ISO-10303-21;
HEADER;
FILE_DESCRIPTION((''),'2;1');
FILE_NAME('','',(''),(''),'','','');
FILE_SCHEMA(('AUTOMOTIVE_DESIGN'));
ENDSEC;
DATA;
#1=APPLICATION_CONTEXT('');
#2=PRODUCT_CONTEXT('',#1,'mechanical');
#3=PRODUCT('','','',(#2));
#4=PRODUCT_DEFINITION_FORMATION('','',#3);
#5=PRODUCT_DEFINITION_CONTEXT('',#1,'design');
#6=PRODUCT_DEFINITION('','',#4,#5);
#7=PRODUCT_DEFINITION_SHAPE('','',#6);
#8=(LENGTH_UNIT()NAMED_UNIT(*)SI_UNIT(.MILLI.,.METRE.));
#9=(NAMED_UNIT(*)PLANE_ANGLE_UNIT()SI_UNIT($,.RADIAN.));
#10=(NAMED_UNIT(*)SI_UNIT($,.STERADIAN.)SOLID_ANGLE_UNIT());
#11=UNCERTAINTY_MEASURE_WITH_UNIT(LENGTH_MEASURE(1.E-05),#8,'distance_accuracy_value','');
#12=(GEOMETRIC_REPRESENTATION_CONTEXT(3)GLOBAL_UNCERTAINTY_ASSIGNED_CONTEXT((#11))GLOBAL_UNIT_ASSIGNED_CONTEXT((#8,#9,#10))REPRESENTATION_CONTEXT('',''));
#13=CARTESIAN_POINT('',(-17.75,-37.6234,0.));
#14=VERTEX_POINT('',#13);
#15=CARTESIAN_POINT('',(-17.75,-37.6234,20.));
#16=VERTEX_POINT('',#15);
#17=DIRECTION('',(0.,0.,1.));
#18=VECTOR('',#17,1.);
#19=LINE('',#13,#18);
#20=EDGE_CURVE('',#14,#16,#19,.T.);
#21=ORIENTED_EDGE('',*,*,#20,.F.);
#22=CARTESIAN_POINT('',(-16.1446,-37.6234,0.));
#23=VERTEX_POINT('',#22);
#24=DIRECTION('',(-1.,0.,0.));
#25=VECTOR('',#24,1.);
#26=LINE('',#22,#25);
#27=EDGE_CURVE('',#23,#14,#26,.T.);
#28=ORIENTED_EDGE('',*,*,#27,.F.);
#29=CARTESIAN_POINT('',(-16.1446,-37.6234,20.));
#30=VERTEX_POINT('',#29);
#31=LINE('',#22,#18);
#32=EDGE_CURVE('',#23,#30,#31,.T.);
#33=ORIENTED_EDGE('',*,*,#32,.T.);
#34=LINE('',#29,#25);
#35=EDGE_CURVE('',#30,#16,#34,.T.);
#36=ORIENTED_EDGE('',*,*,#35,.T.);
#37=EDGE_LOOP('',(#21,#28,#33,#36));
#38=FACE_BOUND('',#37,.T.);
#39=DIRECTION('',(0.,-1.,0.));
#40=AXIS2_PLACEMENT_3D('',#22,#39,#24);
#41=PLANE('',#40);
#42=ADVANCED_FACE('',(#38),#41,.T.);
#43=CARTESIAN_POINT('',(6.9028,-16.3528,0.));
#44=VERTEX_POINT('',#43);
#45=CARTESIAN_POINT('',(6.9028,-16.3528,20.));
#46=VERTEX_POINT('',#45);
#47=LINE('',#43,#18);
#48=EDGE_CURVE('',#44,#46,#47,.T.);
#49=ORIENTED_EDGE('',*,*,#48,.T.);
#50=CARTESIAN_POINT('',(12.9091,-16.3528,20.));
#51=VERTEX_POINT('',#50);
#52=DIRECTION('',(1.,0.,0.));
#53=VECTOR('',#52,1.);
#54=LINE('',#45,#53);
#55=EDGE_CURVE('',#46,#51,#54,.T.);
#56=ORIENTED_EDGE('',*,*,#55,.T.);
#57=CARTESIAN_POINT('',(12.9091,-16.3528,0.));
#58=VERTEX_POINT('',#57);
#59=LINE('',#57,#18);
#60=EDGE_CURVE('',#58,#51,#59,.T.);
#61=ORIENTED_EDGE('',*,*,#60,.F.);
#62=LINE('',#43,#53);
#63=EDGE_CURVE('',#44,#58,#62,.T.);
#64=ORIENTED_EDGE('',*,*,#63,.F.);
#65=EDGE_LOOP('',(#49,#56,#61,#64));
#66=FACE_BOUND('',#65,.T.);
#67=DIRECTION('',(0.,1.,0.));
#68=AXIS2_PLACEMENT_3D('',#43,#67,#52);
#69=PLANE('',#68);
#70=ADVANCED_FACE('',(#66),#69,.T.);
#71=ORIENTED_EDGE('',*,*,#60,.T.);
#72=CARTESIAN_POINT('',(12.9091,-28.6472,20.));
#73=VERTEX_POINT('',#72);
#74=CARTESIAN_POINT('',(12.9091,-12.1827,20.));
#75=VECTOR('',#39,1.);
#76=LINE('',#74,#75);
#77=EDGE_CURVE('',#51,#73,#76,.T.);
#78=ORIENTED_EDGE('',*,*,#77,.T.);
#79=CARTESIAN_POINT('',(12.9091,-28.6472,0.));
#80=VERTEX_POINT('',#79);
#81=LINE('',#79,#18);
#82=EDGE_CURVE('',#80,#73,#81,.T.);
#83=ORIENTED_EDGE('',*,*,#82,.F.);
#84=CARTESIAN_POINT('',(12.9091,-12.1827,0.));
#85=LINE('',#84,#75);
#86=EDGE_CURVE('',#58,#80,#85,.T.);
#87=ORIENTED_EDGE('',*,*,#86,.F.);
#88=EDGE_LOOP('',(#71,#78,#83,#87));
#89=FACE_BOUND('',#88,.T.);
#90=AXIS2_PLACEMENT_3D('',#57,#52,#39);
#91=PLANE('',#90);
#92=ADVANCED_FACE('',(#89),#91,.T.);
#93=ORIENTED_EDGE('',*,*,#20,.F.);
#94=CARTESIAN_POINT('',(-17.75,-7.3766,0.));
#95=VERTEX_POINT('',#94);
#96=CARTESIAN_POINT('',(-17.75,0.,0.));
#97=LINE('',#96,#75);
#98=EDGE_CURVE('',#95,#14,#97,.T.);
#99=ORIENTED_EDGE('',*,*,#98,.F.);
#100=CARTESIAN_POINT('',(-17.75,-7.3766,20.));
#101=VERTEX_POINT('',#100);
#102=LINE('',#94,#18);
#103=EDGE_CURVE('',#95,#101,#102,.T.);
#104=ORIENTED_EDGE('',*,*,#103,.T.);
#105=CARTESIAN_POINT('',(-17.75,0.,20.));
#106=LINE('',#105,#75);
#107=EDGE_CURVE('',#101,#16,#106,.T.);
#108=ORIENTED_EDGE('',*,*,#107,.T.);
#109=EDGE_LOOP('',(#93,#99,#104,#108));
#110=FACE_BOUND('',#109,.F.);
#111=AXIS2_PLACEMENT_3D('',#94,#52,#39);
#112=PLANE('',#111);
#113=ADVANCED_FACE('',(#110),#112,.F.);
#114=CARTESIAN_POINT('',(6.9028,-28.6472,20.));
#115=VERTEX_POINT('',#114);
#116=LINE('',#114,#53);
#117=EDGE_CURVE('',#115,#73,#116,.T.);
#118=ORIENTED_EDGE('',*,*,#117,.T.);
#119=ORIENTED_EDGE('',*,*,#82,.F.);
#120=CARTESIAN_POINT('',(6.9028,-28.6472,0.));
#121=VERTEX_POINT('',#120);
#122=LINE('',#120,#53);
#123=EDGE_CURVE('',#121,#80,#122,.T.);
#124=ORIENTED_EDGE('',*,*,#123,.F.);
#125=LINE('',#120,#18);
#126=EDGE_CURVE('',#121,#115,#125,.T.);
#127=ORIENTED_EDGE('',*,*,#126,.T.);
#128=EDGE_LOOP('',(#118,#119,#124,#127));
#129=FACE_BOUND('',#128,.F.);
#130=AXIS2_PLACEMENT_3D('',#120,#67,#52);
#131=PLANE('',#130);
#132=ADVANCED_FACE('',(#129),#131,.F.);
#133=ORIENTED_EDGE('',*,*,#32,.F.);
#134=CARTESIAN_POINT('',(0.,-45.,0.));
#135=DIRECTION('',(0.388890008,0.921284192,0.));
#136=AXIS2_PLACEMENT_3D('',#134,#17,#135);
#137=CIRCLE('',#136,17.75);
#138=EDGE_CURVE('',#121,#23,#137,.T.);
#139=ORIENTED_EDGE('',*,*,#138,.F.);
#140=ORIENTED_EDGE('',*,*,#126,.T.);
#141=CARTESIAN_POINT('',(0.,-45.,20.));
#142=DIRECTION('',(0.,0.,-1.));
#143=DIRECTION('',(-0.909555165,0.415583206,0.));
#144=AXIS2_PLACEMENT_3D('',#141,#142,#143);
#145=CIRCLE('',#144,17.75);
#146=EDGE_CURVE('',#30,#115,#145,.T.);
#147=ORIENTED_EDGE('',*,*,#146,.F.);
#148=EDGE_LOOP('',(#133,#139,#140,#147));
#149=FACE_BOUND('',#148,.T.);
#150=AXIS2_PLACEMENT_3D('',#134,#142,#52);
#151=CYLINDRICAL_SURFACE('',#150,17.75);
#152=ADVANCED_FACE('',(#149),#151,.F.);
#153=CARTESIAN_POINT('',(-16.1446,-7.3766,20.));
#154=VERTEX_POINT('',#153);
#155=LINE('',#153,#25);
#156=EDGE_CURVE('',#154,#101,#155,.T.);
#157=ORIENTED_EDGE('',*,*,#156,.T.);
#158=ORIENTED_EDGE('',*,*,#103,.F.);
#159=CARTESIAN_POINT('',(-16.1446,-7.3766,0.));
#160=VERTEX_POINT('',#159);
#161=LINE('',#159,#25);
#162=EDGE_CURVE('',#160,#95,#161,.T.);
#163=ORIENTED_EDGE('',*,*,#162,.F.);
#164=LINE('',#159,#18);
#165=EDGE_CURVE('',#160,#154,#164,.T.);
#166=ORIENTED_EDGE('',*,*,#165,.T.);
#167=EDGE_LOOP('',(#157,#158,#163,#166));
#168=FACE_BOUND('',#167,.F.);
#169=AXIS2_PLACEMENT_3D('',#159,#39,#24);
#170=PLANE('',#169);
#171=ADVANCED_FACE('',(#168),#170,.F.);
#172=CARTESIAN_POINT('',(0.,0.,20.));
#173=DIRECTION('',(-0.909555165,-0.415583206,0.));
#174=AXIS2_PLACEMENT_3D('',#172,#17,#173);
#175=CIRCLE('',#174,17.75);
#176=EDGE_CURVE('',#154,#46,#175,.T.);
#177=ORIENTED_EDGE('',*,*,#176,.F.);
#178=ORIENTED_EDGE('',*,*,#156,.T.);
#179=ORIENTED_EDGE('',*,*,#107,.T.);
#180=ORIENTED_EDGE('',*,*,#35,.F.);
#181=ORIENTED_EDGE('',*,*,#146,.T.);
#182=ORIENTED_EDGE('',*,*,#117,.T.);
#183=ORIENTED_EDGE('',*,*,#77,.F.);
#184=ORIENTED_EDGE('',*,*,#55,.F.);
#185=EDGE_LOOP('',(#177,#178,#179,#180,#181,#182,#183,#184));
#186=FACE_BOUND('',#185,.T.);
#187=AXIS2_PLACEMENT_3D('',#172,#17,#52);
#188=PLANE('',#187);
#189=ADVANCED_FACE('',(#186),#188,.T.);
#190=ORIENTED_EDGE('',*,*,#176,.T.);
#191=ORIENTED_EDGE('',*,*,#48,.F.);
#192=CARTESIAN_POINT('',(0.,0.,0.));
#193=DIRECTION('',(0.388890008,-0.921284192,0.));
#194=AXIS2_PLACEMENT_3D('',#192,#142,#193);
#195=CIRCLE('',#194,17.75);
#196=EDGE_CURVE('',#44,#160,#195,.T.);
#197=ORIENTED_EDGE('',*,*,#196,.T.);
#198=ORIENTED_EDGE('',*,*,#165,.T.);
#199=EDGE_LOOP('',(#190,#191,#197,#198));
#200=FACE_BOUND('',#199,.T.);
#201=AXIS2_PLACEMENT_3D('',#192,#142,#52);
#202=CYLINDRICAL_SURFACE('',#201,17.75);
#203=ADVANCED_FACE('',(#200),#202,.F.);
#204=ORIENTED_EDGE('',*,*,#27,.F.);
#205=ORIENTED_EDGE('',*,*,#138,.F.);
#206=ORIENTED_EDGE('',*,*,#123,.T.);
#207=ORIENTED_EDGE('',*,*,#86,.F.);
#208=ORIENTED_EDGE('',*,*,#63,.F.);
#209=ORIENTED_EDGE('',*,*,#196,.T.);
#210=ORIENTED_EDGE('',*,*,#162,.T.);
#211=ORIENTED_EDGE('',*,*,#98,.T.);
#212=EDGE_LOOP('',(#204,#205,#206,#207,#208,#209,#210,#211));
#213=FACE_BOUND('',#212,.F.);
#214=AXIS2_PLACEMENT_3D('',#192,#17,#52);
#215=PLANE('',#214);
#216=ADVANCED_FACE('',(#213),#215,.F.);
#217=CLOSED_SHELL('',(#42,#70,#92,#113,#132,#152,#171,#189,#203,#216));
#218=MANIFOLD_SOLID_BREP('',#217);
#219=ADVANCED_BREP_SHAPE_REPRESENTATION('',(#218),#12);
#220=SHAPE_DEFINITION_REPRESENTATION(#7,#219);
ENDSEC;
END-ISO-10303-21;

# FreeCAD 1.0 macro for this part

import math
import FreeCAD as App
import Part
import Sketcher

V = App.Vector
Q = App.Units.Quantity

doc = App.newDocument("Part")
body = doc.addObject("PartDesign::Body", "Body")

# Sketch on XY plane
sketch1 = body.newObject("Sketcher::SketchObject", "Sketch")
sketch1.AttachmentSupport = (doc.getObject("XY_Plane"), [""])
sketch1.MapMode = "FlatFace"
sketch1.addGeometry([
    Part.LineSegment(V(-16.1, -7.4, 0), V(-17.8, -7.4, 0)),  # 0
    Part.LineSegment(V(-17.8, -7.4, 0), V(-17.8, -37.6, 0)),  # 1
    Part.LineSegment(V(-17.8, -37.6, 0), V(-16.1, -37.6, 0)),  # 2
    Part.ArcOfCircle(Part.Circle(V(0, -45, 0), V(0, 0, 1), 17.8), math.radians(67), math.radians(155)),  # 3
    Part.LineSegment(V(6.9, -28.6, 0), V(12.9, -28.6, 0)),  # 4
    Part.LineSegment(V(12.9, -28.6, 0), V(12.9, -16.4, 0)),  # 5
    Part.LineSegment(V(12.9, -16.4, 0), V(6.9, -16.4, 0)),  # 6
    Part.ArcOfCircle(Part.Circle(V(0, 0, 0), V(0, 0, 1), 17.8), math.radians(-155), math.radians(-67)),  # 7
], False)
sketch1.addConstraint([
    Sketcher.Constraint("Coincident", 0, 2, 1, 1),
    Sketcher.Constraint("Coincident", 1, 2, 2, 1),
    Sketcher.Constraint("Coincident", 2, 2, 3, 2),
    Sketcher.Constraint("Coincident", 3, 1, 4, 1),
    Sketcher.Constraint("Coincident", 4, 2, 5, 1),
    Sketcher.Constraint("Coincident", 5, 2, 6, 1),
    Sketcher.Constraint("Coincident", 6, 2, 7, 2),
    Sketcher.Constraint("Coincident", 7, 1, 0, 1),
    Sketcher.Constraint("Horizontal", 0),
    Sketcher.Constraint("Vertical", 1),
    Sketcher.Constraint("Horizontal", 2),
    Sketcher.Constraint("Horizontal", 4),
    Sketcher.Constraint("Vertical", 5),
    Sketcher.Constraint("Horizontal", 6),
    Sketcher.Constraint("Coincident", 7, 3, -1, 1),
    Sketcher.Constraint("Equal", 3, 7),
    Sketcher.Constraint("PointOnObject", 3, 3, -2),
    Sketcher.Constraint("Vertical", 3, 1, 6, 2),
    Sketcher.Constraint("Vertical", 2, 2, 7, 1),
    Sketcher.Constraint("Radius", 3, Q("17.75 mm")),
    Sketcher.Constraint("DistanceY", 3, 3, -1, 1, Q("45 mm")),
    Sketcher.Constraint("DistanceX", 0, 2, -1, 1, Q("17.75 mm")),
    Sketcher.Constraint("DistanceX", 0, 2, 0, 1, Q("1.6054 mm")),
    Sketcher.Constraint("DistanceX", 4, 1, 4, 2, Q("6.0063 mm")),
    Sketcher.Constraint("DistanceY", 5, 1, 5, 2, Q("12.2944 mm")),
])
pad1 = body.newObject("PartDesign::Pad", "Pad")
pad1.Profile = sketch1
pad1.Length = 20

doc.recompute()
